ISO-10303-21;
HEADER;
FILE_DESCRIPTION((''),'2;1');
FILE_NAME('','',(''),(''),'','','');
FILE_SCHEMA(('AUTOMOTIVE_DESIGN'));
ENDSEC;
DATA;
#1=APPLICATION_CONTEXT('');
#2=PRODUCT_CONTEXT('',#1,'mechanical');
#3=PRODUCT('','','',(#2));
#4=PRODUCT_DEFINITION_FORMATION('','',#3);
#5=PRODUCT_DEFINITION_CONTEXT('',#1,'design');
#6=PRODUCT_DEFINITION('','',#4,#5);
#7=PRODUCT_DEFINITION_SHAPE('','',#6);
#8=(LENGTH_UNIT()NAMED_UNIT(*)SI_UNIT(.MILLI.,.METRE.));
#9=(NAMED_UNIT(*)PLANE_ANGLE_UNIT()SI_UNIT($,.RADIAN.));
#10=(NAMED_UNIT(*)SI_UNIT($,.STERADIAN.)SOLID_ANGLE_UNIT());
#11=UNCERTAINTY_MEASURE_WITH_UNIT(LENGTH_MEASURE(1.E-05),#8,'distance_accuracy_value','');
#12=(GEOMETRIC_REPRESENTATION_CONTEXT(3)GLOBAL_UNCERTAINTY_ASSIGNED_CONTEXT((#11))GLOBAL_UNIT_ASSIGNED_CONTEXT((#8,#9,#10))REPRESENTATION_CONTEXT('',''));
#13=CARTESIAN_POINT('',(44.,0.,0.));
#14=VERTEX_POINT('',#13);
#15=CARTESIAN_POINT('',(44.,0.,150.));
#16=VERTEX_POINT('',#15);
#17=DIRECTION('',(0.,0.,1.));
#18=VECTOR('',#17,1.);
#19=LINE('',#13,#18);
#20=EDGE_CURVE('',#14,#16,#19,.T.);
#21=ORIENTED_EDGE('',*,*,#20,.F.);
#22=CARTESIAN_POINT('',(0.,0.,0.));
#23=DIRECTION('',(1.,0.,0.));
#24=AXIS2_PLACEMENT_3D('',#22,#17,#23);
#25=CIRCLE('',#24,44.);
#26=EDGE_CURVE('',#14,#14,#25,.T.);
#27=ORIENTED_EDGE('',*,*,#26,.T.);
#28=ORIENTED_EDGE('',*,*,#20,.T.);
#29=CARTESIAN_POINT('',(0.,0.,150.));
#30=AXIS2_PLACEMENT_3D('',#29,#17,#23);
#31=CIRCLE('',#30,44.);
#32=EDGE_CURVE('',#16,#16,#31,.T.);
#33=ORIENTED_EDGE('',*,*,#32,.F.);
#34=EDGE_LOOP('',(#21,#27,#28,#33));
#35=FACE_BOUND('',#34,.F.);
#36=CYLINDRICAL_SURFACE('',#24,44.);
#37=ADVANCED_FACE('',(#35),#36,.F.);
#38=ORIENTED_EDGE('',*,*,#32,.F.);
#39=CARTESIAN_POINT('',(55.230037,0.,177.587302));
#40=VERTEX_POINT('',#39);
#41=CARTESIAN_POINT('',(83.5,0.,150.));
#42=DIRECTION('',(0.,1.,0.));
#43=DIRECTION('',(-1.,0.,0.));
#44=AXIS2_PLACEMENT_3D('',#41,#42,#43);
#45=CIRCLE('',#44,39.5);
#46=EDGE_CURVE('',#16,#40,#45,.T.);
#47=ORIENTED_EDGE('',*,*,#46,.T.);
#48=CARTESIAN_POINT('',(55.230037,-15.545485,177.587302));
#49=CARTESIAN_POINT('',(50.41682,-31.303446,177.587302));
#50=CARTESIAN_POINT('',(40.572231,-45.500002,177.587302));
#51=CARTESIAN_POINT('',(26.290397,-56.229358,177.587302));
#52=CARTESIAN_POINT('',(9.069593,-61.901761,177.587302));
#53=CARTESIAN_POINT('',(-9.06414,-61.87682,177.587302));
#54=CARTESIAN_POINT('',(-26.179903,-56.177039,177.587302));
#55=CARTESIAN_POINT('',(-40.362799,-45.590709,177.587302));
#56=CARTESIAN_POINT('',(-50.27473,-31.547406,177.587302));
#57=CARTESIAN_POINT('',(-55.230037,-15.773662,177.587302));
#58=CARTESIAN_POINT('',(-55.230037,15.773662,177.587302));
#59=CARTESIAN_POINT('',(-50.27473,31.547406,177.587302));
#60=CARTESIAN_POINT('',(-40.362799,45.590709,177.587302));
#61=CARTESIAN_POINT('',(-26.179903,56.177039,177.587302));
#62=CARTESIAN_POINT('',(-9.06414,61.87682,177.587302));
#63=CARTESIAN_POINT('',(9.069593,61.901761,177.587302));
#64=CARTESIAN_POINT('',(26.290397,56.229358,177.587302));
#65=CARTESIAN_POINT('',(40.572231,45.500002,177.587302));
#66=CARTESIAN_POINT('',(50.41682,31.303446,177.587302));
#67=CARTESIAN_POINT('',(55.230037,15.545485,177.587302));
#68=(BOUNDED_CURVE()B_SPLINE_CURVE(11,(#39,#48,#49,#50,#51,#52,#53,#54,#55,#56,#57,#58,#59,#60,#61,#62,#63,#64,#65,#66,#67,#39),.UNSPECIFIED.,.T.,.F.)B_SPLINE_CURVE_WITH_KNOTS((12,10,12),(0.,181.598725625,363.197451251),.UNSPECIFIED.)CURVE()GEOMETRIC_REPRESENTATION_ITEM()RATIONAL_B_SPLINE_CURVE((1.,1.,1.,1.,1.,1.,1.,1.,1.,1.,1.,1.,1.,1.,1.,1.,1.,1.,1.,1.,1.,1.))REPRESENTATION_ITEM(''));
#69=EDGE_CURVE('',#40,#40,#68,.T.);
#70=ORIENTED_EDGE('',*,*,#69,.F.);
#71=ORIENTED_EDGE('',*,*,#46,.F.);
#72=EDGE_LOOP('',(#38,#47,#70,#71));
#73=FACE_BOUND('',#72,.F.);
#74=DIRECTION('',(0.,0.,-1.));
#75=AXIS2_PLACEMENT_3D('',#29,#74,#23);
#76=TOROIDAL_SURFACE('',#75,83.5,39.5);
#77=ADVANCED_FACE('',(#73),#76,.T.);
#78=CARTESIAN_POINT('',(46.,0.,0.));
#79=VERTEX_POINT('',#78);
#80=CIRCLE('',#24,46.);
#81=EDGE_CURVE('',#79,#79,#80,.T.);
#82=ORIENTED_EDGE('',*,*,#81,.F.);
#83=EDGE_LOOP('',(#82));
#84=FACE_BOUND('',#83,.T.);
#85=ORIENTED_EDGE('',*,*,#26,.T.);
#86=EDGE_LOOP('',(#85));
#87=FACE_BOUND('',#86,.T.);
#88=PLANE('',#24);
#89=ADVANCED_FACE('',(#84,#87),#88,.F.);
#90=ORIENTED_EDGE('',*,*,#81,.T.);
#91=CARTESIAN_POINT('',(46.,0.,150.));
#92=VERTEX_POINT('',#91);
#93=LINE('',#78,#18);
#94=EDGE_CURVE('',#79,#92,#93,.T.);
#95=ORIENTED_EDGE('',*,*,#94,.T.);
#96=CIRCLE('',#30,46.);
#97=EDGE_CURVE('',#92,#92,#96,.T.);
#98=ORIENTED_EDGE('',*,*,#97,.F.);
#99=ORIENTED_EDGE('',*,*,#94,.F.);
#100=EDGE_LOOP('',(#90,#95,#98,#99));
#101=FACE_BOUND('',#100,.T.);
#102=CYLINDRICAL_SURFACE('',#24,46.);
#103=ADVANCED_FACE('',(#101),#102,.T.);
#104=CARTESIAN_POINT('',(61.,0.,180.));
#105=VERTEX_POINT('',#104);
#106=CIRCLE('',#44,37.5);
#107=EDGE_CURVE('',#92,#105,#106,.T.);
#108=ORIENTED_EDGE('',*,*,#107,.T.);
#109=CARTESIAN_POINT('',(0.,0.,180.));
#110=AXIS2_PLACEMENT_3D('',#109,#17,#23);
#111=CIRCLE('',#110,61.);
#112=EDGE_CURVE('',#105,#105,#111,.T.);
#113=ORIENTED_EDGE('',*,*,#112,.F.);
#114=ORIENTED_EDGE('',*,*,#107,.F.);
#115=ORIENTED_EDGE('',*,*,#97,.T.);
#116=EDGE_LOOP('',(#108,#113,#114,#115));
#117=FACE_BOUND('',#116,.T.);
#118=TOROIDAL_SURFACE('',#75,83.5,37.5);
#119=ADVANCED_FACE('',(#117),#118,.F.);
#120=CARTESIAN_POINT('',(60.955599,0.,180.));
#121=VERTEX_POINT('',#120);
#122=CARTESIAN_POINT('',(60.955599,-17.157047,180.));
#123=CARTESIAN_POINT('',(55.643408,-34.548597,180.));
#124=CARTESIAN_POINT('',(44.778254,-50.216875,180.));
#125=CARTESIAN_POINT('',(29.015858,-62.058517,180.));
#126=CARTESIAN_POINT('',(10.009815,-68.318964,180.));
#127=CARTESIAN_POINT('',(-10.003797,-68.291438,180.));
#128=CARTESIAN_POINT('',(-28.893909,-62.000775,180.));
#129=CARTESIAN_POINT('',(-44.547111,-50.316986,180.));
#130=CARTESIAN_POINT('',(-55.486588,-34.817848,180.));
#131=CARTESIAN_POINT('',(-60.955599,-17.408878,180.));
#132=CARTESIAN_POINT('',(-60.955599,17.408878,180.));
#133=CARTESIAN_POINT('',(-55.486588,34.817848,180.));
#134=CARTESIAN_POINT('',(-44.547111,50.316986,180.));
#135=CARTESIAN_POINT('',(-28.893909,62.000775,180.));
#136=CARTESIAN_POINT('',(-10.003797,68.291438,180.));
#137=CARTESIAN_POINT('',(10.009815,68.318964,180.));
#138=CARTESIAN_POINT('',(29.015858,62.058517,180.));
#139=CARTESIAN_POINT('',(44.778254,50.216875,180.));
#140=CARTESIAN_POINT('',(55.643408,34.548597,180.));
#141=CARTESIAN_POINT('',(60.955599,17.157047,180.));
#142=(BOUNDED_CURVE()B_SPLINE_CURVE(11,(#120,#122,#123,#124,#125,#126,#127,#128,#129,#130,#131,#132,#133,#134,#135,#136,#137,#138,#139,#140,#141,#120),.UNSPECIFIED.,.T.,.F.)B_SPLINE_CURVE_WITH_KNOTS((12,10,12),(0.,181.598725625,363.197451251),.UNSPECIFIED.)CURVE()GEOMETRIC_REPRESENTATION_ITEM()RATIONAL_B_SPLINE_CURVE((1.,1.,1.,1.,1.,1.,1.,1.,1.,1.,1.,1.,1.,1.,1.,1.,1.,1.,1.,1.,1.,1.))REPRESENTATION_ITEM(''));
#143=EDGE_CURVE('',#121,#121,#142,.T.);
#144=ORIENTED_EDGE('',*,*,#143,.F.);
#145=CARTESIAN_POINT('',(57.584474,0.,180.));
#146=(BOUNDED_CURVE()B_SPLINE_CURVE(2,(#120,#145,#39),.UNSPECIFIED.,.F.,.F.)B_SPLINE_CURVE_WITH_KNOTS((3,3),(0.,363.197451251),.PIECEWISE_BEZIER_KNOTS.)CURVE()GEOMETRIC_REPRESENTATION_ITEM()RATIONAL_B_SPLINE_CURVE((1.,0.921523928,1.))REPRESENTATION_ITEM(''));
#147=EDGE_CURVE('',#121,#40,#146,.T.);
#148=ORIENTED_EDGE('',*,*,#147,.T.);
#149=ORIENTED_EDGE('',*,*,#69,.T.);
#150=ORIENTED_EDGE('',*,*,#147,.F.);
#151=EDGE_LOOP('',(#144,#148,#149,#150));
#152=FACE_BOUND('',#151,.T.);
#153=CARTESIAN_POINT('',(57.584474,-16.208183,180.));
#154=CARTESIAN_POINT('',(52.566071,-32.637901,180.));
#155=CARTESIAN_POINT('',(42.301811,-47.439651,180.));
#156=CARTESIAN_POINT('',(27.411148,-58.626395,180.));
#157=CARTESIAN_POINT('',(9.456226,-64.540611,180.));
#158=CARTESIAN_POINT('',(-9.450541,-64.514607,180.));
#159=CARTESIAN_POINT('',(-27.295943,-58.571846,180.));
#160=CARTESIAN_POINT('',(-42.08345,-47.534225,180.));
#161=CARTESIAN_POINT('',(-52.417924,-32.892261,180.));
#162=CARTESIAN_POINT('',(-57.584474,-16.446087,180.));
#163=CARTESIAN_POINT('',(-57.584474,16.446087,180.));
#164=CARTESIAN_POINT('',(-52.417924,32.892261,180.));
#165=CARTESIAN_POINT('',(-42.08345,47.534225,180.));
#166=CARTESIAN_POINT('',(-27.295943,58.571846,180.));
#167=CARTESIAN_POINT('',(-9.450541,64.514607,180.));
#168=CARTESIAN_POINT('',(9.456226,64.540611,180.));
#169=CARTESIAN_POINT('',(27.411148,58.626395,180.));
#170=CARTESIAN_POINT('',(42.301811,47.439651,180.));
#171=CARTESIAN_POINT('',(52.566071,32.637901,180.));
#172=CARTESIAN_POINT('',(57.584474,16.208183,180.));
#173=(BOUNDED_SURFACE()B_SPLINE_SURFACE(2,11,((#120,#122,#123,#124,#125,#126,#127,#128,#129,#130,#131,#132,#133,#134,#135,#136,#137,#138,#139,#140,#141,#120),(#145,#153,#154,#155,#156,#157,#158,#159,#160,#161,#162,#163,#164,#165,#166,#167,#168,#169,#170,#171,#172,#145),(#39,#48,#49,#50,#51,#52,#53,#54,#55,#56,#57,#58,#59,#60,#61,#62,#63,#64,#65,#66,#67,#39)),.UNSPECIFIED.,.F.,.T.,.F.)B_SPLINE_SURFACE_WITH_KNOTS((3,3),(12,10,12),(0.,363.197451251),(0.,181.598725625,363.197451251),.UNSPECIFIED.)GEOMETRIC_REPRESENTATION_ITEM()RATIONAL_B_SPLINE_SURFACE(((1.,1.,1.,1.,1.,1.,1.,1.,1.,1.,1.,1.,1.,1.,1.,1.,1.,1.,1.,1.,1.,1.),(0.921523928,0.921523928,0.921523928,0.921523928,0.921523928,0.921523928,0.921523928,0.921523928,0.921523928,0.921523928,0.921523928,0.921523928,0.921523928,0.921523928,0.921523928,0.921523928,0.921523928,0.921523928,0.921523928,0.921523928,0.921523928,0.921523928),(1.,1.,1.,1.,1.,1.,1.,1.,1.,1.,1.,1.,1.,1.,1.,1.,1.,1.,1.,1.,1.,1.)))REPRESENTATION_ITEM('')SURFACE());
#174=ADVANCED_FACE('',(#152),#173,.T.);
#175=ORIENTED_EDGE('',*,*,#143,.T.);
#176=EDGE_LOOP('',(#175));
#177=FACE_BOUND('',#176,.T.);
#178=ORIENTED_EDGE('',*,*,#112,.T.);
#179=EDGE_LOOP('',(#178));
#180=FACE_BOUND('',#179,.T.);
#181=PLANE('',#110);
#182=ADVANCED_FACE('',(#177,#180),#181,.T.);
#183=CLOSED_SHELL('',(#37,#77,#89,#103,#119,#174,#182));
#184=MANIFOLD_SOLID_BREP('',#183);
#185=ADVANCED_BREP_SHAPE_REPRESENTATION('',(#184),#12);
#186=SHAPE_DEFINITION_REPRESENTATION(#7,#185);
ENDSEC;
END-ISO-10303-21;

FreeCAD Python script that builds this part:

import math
import FreeCAD as App
import Part
import Sketcher
from FreeCAD import Vector


def edges_at(feature, points):
    """Names of the edges that pass closest to the given points."""
    edges = feature.Shape.Edges
    near = lambda p: min(range(len(edges)), key=lambda i: edges[i].distToShape(Part.Vertex(*p))[0])
    return sorted({f"Edge{near(p) + 1}" for p in points})


def faces_at(feature, points):
    """Names of the faces that lie closest to the given points."""
    faces = feature.Shape.Faces
    near = lambda p: min(range(len(faces)), key=lambda i: faces[i].distToShape(Part.Vertex(*p))[0])
    return sorted({f"Face{near(p) + 1}" for p in points})

doc = App.newDocument("Part")
params = doc.addObject("Spreadsheet::Sheet", "Params")
for row, (alias, value) in enumerate([
    ("sketch1_radius", "37.5 mm"),
    ("sketch1_width", "46 mm"),
    ("sketch1_width2", "61 mm"),
    ("sketch1_height", "180 mm"),
    ("revolution_angle", "360 deg"),
    ("thickness_wall", "2 mm"),
    ("fillet_radius", "8 mm"),
], start=1):
    params.set(f"A{row}", alias)
    params.set(f"B{row}", "=" + value)
    params.setAlias(f"B{row}", alias)

body = doc.addObject("PartDesign::Body", "Body")

sketch1 = doc.addObject("Sketcher::SketchObject", "Sketch")
body.addObject(sketch1)
sketch1.AttachmentSupport = (doc.XZ_Plane, [""])
sketch1.MapMode = "FlatFace"
sketch1.addGeometry(Part.LineSegment(Vector(0, 180, 0), Vector(0, 0, 0)), False)
sketch1.addGeometry(Part.LineSegment(Vector(0, 0, 0), Vector(46, 0, 0)), False)
sketch1.addGeometry(Part.LineSegment(Vector(46, 0, 0), Vector(46, 150, 0)), False)
sketch1.addGeometry(Part.ArcOfCircle(Part.Circle(Vector(84, 150, 0), Vector(0, 0, 1), 38), math.radians(127), math.radians(180)), False)
sketch1.addGeometry(Part.LineSegment(Vector(61, 180, 0), Vector(0, 180, 0)), False)
sketch1.addConstraint(Sketcher.Constraint("Coincident", 0, 2, 1, 1))
sketch1.addConstraint(Sketcher.Constraint("Coincident", 1, 2, 2, 1))
sketch1.addConstraint(Sketcher.Constraint("Tangent", 2, 2, 3, 2))
sketch1.addConstraint(Sketcher.Constraint("Coincident", 3, 1, 4, 1))
sketch1.addConstraint(Sketcher.Constraint("Coincident", 4, 2, 0, 1))
sketch1.addConstraint(Sketcher.Constraint("Vertical", 0))
sketch1.addConstraint(Sketcher.Constraint("Horizontal", 1))
sketch1.addConstraint(Sketcher.Constraint("Vertical", 2))
sketch1.addConstraint(Sketcher.Constraint("Horizontal", 4))
sketch1.addConstraint(Sketcher.Constraint("Coincident", 0, 2, -1, 1))
sketch1.addConstraint(Sketcher.Constraint("Radius", 3, 37.5))
sketch1.addConstraint(Sketcher.Constraint("DistanceX", 1, 1, 1, 2, 46.0))
sketch1.addConstraint(Sketcher.Constraint("DistanceX", 4, 2, 4, 1, 61.0))
sketch1.addConstraint(Sketcher.Constraint("DistanceY", 0, 2, 0, 1, 180.0))
sketch1.setExpression("Constraints[10]", "Params.sketch1_radius")
sketch1.setExpression("Constraints[11]", "Params.sketch1_width")
sketch1.setExpression("Constraints[12]", "Params.sketch1_width2")
sketch1.setExpression("Constraints[13]", "Params.sketch1_height")
revolution = doc.addObject("PartDesign::Revolution", "Revolution")
body.addObject(revolution)
revolution.Profile = sketch1
revolution.ReferenceAxis = (sketch1, ["V_Axis"])
revolution.setExpression("Angle", "Params.revolution_angle")
doc.recompute()

thickness = doc.addObject("PartDesign::Thickness", "Thickness")
body.addObject(thickness)
thickness.Base = (revolution, faces_at(revolution, [(0, 0, 180), (0, 0, 0)]))
thickness.setExpression("Value", "Params.thickness_wall")
thickness.Reversed = True
thickness.Join = "Arc"
doc.recompute()

fillet = doc.addObject("PartDesign::Fillet", "Fillet")
body.addObject(fillet)
fillet.Base = (thickness, edges_at(thickness, [(-57.805, 0, 180)]))
fillet.setExpression("Radius", "Params.fillet_radius")

doc.recompute()
